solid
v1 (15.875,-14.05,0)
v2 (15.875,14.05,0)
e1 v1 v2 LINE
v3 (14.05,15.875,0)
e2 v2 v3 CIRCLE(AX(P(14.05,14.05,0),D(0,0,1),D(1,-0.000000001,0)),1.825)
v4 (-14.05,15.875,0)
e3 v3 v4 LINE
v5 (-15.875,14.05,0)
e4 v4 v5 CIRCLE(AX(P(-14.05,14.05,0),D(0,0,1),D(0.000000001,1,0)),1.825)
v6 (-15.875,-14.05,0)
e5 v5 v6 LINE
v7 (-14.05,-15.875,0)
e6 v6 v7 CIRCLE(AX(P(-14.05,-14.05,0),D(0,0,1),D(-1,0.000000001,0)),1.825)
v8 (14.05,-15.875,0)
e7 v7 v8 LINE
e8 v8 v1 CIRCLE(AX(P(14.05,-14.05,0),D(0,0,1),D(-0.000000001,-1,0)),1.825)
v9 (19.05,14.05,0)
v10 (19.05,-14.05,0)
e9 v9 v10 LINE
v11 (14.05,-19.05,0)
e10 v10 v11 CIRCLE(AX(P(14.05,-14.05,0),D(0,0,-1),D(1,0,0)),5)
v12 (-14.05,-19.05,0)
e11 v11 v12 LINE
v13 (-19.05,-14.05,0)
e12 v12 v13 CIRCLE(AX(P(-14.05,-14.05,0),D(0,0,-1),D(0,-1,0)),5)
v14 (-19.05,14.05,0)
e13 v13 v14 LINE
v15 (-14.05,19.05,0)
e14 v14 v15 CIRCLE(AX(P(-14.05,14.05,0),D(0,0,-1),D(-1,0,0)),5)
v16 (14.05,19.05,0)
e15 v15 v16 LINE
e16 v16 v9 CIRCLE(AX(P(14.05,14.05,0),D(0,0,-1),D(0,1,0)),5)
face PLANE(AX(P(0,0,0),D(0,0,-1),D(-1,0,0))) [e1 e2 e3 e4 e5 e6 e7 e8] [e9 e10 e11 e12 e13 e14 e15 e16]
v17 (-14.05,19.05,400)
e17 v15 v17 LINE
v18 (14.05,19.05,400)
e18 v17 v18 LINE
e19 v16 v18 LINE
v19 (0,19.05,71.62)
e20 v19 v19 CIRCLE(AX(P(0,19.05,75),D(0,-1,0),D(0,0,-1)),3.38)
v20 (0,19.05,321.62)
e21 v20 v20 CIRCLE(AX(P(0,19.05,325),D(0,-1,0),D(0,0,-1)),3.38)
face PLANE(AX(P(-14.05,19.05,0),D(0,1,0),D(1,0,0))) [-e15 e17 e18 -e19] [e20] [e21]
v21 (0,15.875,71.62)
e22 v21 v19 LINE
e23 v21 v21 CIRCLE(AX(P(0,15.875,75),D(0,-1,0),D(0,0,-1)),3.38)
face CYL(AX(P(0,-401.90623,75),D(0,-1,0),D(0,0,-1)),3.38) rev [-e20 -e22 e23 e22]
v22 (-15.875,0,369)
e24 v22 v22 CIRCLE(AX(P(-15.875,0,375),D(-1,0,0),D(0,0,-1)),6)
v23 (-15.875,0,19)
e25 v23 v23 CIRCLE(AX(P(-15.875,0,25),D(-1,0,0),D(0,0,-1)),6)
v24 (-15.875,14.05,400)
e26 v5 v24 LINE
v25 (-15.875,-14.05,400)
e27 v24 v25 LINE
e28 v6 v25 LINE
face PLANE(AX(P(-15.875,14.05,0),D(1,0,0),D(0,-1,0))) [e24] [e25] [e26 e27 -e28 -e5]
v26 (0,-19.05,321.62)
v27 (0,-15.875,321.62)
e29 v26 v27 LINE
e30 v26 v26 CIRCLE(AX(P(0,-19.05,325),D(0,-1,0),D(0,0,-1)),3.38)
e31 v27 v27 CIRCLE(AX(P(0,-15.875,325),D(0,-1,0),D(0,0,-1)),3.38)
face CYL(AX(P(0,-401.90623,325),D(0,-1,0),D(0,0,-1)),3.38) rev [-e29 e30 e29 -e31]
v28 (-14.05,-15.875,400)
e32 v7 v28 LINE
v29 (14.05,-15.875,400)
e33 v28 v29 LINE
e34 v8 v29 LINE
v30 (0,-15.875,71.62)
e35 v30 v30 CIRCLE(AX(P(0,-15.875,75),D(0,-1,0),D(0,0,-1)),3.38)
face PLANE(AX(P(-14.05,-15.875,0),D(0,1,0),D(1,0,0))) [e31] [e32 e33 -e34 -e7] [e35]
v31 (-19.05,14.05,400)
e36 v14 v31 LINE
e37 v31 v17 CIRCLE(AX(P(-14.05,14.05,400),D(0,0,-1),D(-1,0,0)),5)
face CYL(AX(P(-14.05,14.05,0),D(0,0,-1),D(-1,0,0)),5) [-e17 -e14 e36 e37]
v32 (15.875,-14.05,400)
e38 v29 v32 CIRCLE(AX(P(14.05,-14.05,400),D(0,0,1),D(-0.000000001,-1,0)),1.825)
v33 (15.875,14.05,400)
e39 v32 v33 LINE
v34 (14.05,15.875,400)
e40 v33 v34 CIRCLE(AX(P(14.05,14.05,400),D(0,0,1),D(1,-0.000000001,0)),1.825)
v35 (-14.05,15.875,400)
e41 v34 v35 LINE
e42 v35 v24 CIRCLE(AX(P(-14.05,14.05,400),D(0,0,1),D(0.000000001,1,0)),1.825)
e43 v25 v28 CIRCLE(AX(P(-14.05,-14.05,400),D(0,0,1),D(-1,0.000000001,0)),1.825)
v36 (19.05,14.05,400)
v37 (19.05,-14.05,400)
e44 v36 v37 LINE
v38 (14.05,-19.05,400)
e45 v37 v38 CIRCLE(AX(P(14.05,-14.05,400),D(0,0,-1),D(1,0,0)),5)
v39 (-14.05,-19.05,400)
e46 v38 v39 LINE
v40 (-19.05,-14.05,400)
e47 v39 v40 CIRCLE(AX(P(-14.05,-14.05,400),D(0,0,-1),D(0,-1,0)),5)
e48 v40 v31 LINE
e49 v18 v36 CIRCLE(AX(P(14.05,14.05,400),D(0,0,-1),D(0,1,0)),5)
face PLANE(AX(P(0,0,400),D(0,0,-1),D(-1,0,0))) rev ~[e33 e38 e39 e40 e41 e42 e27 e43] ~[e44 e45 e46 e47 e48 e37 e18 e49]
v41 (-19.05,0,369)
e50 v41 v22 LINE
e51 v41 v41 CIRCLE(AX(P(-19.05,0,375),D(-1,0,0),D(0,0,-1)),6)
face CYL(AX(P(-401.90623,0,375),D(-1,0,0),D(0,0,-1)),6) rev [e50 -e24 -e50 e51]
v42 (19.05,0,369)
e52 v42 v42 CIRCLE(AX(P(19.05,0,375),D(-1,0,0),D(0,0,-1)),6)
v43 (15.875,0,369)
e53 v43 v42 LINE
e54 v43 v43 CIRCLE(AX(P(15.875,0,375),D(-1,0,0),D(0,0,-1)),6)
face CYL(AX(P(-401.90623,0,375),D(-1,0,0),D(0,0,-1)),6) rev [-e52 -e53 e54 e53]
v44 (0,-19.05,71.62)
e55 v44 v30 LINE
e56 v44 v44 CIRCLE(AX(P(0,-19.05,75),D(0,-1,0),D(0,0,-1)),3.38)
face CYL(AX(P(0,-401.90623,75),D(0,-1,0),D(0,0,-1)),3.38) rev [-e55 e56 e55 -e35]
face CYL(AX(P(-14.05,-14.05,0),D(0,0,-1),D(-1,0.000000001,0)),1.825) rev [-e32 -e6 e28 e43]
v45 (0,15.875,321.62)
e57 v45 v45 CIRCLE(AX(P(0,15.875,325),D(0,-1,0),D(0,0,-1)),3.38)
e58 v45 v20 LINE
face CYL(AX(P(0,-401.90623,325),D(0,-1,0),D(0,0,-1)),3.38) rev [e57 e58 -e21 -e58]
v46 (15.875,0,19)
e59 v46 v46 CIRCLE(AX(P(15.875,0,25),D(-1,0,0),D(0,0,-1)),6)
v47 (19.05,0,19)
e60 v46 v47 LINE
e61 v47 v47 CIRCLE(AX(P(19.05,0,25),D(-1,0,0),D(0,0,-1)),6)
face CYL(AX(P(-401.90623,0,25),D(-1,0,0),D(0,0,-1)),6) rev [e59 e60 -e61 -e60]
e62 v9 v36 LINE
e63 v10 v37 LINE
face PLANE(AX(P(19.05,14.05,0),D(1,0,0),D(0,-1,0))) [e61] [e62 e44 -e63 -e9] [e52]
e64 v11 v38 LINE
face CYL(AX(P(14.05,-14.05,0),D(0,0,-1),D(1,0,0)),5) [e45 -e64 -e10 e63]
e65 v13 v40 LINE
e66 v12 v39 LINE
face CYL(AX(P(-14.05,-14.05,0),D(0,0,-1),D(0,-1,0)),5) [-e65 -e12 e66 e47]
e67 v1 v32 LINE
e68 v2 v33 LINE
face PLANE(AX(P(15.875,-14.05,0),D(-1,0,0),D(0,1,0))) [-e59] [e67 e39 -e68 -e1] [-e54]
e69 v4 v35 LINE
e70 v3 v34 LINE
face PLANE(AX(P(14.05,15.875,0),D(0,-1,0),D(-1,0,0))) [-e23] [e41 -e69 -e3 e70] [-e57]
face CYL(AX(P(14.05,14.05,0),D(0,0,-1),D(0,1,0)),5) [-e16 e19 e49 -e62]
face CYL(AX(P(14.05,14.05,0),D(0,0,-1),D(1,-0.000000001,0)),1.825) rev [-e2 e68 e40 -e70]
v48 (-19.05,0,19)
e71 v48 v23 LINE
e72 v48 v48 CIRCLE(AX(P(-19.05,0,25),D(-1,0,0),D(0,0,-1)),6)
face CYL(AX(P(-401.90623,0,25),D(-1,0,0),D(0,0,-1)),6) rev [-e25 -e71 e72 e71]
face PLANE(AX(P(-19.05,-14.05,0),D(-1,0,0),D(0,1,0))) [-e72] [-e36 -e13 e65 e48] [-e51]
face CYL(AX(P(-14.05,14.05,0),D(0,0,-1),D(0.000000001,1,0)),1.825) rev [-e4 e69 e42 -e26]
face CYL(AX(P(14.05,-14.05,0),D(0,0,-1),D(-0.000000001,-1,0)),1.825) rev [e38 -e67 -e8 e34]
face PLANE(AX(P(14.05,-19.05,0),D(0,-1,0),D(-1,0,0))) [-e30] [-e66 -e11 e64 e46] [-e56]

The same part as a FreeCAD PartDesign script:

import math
import FreeCAD as App
import Part
import Sketcher
from FreeCAD import Vector
Q = App.Units.Quantity

doc = App.newDocument("Part")
params = doc.addObject("Spreadsheet::Sheet", "Params")
for row, (alias, value) in enumerate([
    ("sketch1_radius", "5 mm"),
    ("sketch1_width", "28.1 mm"),
    ("pad1_length", "400 mm"),
    ("sketch2_diameter", "12 mm"),
    ("sketch3_diameter", "6.76 mm"),
], start=1):
    params.set(f"A{row}", alias)
    params.set(f"B{row}", "=" + value)
    params.setAlias(f"B{row}", alias)

body = doc.addObject("PartDesign::Body", "Body")

# Sketch on XY plane
sketch1 = doc.addObject("Sketcher::SketchObject", "Sketch")
body.addObject(sketch1)
sketch1.AttachmentSupport = (doc.XY_Plane, [""])
sketch1.MapMode = "FlatFace"
sketch1.addGeometry([
    Part.LineSegment(Vector(14.1, 19.1, 0), Vector(-14.1, 19.1, 0)),  # 0
    Part.ArcOfCircle(Part.Circle(Vector(-14.1, 14.1, 0), Vector(0, 0, 1), 5), math.radians(90), math.radians(180)),  # 1
    Part.LineSegment(Vector(-19.1, 14.1, 0), Vector(-19.1, -14.1, 0)),  # 2
    Part.ArcOfCircle(Part.Circle(Vector(-14.1, -14.1, 0), Vector(0, 0, 1), 5), math.radians(180), math.radians(270)),  # 3
    Part.LineSegment(Vector(-14.1, -19.1, 0), Vector(14.1, -19.1, 0)),  # 4
    Part.ArcOfCircle(Part.Circle(Vector(14.1, -14.1, 0), Vector(0, 0, 1), 5), math.radians(-90), math.radians(0)),  # 5
    Part.LineSegment(Vector(19.1, -14.1, 0), Vector(19.1, 14.1, 0)),  # 6
    Part.ArcOfCircle(Part.Circle(Vector(14.1, 14.1, 0), Vector(0, 0, 1), 5), math.radians(0), math.radians(90)),  # 7
    Part.ArcOfCircle(Part.Circle(Vector(-14.1, 14.1, 0), Vector(0, 0, 1), 1.8), math.radians(90), math.radians(180)),  # 8
    Part.LineSegment(Vector(-14.1, 15.9, 0), Vector(14.1, 15.9, 0)),  # 9
    Part.ArcOfCircle(Part.Circle(Vector(14.1, 14.1, 0), Vector(0, 0, 1), 1.8), math.radians(0), math.radians(90)),  # 10
    Part.LineSegment(Vector(15.9, 14.1, 0), Vector(15.9, -14.1, 0)),  # 11
    Part.ArcOfCircle(Part.Circle(Vector(14.1, -14.1, 0), Vector(0, 0, 1), 1.8), math.radians(-90), math.radians(0)),  # 12
    Part.LineSegment(Vector(14.1, -15.9, 0), Vector(-14.1, -15.9, 0)),  # 13
    Part.ArcOfCircle(Part.Circle(Vector(-14.1, -14.1, 0), Vector(0, 0, 1), 1.8), math.radians(180), math.radians(270)),  # 14
    Part.LineSegment(Vector(-15.9, -14.1, 0), Vector(-15.9, 14.1, 0)),  # 15
], False)
sketch1.addConstraint([
    Sketcher.Constraint("Tangent", 0, 2, 1, 1),
    Sketcher.Constraint("Tangent", 1, 2, 2, 1),
    Sketcher.Constraint("Tangent", 2, 2, 3, 1),
    Sketcher.Constraint("Tangent", 3, 2, 4, 1),
    Sketcher.Constraint("Tangent", 4, 2, 5, 1),
    Sketcher.Constraint("Tangent", 5, 2, 6, 1),
    Sketcher.Constraint("Tangent", 6, 2, 7, 1),
    Sketcher.Constraint("Tangent", 7, 2, 0, 1),
    Sketcher.Constraint("Tangent", 8, 1, 9, 1),
    Sketcher.Constraint("Tangent", 9, 2, 10, 2),
    Sketcher.Constraint("Tangent", 10, 1, 11, 1),
    Sketcher.Constraint("Tangent", 11, 2, 12, 2),
    Sketcher.Constraint("Tangent", 12, 1, 13, 1),
    Sketcher.Constraint("Tangent", 13, 2, 14, 2),
    Sketcher.Constraint("Tangent", 14, 1, 15, 1),
    Sketcher.Constraint("Tangent", 15, 2, 8, 2),
    Sketcher.Constraint("Horizontal", 0),
    Sketcher.Constraint("Vertical", 2),
    Sketcher.Constraint("Horizontal", 4),
    Sketcher.Constraint("Vertical", 6),
    Sketcher.Constraint("Horizontal", 9),
    Sketcher.Constraint("Vertical", 11),
    Sketcher.Constraint("Horizontal", 13),
    Sketcher.Constraint("Vertical", 15),
    Sketcher.Constraint("Coincident", 8, 3, 1, 3),
    Sketcher.Constraint("Coincident", 10, 3, 7, 3),
    Sketcher.Constraint("Coincident", 12, 3, 5, 3),
    Sketcher.Constraint("Equal", 1, 3),
    Sketcher.Constraint("Equal", 3, 5),
    Sketcher.Constraint("Equal", 5, 7),
    Sketcher.Constraint("Equal", 12, 14),
    Sketcher.Constraint("Symmetric", 1, 3, 5, 3, -1, 1),
    Sketcher.Constraint("Equal", 13, 2),
    Sketcher.Constraint("Radius", 1, Q("5 mm")),
    Sketcher.Constraint("DistanceX", 0, 2, 0, 1, Q("28.1 mm")),
    Sketcher.Constraint("Radius", 8, Q("1.825 mm")),
])
sketch1.setExpression("Constraints[33]", "Params.sketch1_radius")
sketch1.setExpression("Constraints[34]", "Params.sketch1_width")
pad1 = doc.addObject("PartDesign::Pad", "Pad")
body.addObject(pad1)
pad1.Profile = sketch1
pad1.setExpression("Length", "Params.pad1_length")

# Sketch on YZ plane
sketch2 = doc.addObject("Sketcher::SketchObject", "Sketch001")
body.addObject(sketch2)
sketch2.AttachmentSupport = (doc.YZ_Plane, [""])
sketch2.MapMode = "FlatFace"
sketch2.addGeometry([
    Part.Circle(Vector(0, 375, 0), Vector(0, 0, 1), 6),
    Part.Circle(Vector(0, 25, 0), Vector(0, 0, 1), 6),
], False)
sketch2.addConstraint([
    Sketcher.Constraint("Equal", 0, 1),
    Sketcher.Constraint("PointOnObject", 0, 3, -2),
    Sketcher.Constraint("PointOnObject", 1, 3, -2),
    Sketcher.Constraint("Diameter", 0, Q("12 mm")),
    Sketcher.Constraint("DistanceY", -1, 1, 0, 3, Q("375 mm")),
    Sketcher.Constraint("DistanceY", -1, 1, 1, 3, Q("25 mm")),
])
sketch2.setExpression("Constraints[3]", "Params.sketch2_diameter")
pocket1 = doc.addObject("PartDesign::Pocket", "Pocket")
body.addObject(pocket1)
pocket1.Profile = sketch2
pocket1.Type = "ThroughAll"
pocket1.Midplane = True

# Sketch on XZ plane
sketch3 = doc.addObject("Sketcher::SketchObject", "Sketch002")
body.addObject(sketch3)
sketch3.AttachmentSupport = (doc.XZ_Plane, [""])
sketch3.MapMode = "FlatFace"
sketch3.addGeometry([
    Part.Circle(Vector(0, 325, 0), Vector(0, 0, 1), 3.4),
    Part.Circle(Vector(0, 75, 0), Vector(0, 0, 1), 3.4),
], False)
sketch3.addConstraint([
    Sketcher.Constraint("Equal", 0, 1),
    Sketcher.Constraint("PointOnObject", 0, 3, -2),
    Sketcher.Constraint("PointOnObject", 1, 3, -2),
    Sketcher.Constraint("Diameter", 0, Q("6.76 mm")),
    Sketcher.Constraint("DistanceY", -1, 1, 0, 3, Q("325 mm")),
    Sketcher.Constraint("DistanceY", -1, 1, 1, 3, Q("75 mm")),
])
sketch3.setExpression("Constraints[3]", "Params.sketch3_diameter")
pocket2 = doc.addObject("PartDesign::Pocket", "Pocket001")
body.addObject(pocket2)
pocket2.Profile = sketch3
pocket2.Type = "ThroughAll"
pocket2.Midplane = True

doc.recompute()
